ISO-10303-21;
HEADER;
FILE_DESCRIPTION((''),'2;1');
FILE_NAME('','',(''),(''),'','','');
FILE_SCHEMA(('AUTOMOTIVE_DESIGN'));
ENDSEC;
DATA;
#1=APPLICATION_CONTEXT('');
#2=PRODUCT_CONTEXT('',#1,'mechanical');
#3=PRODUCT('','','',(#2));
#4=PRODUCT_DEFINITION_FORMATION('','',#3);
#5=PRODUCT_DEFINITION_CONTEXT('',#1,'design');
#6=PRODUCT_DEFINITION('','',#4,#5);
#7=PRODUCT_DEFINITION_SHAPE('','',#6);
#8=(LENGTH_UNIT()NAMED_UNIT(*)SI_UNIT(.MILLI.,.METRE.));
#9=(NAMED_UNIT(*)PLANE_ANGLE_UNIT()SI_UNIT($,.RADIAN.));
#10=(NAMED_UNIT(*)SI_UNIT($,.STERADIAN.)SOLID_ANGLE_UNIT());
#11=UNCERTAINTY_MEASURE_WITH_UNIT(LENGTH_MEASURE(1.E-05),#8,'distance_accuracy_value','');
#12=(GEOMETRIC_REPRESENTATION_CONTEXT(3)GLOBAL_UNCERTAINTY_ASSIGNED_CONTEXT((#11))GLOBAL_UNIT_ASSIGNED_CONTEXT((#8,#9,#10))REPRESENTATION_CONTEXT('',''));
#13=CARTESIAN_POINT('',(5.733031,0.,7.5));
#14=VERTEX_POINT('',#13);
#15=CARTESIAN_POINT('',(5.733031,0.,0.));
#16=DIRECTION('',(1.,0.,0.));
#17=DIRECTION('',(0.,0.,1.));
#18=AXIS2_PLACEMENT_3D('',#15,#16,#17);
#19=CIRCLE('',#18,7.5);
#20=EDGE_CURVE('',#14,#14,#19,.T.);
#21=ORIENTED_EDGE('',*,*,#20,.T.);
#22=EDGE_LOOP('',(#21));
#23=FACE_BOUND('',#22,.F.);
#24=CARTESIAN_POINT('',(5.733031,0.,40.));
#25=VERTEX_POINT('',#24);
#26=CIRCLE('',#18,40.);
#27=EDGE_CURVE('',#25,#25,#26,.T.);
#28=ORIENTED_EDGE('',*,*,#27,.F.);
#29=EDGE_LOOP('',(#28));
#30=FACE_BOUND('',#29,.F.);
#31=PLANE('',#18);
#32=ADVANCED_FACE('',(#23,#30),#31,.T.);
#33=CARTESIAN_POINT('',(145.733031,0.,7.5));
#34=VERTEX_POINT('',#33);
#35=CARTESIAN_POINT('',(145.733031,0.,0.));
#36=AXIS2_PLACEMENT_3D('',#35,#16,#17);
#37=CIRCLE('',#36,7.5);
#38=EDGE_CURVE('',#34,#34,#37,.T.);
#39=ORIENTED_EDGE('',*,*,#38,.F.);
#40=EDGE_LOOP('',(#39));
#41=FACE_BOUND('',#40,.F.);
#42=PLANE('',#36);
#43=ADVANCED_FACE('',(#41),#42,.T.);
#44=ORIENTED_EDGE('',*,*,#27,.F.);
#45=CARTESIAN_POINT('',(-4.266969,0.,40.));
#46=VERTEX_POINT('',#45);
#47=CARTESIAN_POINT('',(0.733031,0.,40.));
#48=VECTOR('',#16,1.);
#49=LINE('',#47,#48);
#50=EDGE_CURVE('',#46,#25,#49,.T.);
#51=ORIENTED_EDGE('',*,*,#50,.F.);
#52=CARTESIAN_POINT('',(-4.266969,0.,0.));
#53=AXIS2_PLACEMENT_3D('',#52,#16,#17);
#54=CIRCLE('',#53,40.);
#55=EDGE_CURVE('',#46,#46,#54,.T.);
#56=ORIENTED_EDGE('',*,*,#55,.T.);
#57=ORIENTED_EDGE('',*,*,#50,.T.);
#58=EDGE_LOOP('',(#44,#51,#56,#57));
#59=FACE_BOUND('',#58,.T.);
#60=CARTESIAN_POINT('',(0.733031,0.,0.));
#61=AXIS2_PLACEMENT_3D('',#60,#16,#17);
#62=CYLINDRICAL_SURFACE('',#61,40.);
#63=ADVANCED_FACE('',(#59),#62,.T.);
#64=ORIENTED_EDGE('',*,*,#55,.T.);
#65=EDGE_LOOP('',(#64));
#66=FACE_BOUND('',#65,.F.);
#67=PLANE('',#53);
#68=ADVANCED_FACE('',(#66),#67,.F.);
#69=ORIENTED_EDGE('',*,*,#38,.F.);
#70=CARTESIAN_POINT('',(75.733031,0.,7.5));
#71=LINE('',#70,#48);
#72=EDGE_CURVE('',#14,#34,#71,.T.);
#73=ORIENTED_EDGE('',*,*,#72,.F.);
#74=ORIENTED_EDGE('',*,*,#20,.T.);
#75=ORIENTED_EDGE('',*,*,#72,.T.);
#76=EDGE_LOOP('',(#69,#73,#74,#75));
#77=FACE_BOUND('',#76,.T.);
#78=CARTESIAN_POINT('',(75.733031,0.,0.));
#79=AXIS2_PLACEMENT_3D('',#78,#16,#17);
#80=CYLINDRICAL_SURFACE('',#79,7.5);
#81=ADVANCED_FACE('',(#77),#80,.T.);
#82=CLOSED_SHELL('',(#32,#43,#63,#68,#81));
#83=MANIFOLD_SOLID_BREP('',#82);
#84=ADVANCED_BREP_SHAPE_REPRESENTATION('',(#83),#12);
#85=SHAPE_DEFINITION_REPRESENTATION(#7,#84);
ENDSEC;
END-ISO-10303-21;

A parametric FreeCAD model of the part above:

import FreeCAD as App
import Part
import Sketcher
Q = App.Units.Quantity

doc = App.newDocument("Part")
body = doc.addObject("PartDesign::Body", "Body")

sketch1 = body.newObject("Sketcher::SketchObject", "Sketch")
sketch1.AttachmentSupport = (doc.getObject("XZ_Plane"), [""])
sketch1.MapMode = "FlatFace"
sketch1.addGeometry([
    Part.LineSegment(App.Vector(-4, 40, 0), App.Vector(-4, 0, 0)),
    Part.LineSegment(App.Vector(-4, 0, 0), App.Vector(146, 0, 0)),
    Part.LineSegment(App.Vector(146, 0, 0), App.Vector(146, 8, 0)),
    Part.LineSegment(App.Vector(146, 8, 0), App.Vector(6, 8, 0)),
    Part.LineSegment(App.Vector(6, 8, 0), App.Vector(6, 40, 0)),
    Part.LineSegment(App.Vector(6, 40, 0), App.Vector(-4, 40, 0)),
], False)
sketch1.addConstraint([
    Sketcher.Constraint("Coincident", 0, 2, 1, 1),
    Sketcher.Constraint("Coincident", 1, 2, 2, 1),
    Sketcher.Constraint("Coincident", 2, 2, 3, 1),
    Sketcher.Constraint("Coincident", 3, 2, 4, 1),
    Sketcher.Constraint("Coincident", 4, 2, 5, 1),
    Sketcher.Constraint("Coincident", 5, 2, 0, 1),
    Sketcher.Constraint("Vertical", 0),
    Sketcher.Constraint("Horizontal", 1),
    Sketcher.Constraint("Vertical", 2),
    Sketcher.Constraint("Horizontal", 3),
    Sketcher.Constraint("Vertical", 4),
    Sketcher.Constraint("Horizontal", 5),
    Sketcher.Constraint("PointOnObject", 0, 2, -1),
    Sketcher.Constraint("DistanceX", 1, 1, 1, 2, Q("150 mm")),
    Sketcher.Constraint("DistanceX", 3, 2, 3, 1, Q("140 mm")),
    Sketcher.Constraint("DistanceY", 0, 2, 0, 1, Q("40 mm")),
    Sketcher.Constraint("DistanceY", 2, 1, 2, 2, Q("7.5 mm")),
    Sketcher.Constraint("DistanceX", 0, 2, -1, 1, Q("4.266969 mm")),
])
revolution = body.newObject("PartDesign::Revolution", "Revolution")
revolution.Profile = sketch1
revolution.ReferenceAxis = (sketch1, ["H_Axis"])
revolution.Angle = 360

doc.recompute()
